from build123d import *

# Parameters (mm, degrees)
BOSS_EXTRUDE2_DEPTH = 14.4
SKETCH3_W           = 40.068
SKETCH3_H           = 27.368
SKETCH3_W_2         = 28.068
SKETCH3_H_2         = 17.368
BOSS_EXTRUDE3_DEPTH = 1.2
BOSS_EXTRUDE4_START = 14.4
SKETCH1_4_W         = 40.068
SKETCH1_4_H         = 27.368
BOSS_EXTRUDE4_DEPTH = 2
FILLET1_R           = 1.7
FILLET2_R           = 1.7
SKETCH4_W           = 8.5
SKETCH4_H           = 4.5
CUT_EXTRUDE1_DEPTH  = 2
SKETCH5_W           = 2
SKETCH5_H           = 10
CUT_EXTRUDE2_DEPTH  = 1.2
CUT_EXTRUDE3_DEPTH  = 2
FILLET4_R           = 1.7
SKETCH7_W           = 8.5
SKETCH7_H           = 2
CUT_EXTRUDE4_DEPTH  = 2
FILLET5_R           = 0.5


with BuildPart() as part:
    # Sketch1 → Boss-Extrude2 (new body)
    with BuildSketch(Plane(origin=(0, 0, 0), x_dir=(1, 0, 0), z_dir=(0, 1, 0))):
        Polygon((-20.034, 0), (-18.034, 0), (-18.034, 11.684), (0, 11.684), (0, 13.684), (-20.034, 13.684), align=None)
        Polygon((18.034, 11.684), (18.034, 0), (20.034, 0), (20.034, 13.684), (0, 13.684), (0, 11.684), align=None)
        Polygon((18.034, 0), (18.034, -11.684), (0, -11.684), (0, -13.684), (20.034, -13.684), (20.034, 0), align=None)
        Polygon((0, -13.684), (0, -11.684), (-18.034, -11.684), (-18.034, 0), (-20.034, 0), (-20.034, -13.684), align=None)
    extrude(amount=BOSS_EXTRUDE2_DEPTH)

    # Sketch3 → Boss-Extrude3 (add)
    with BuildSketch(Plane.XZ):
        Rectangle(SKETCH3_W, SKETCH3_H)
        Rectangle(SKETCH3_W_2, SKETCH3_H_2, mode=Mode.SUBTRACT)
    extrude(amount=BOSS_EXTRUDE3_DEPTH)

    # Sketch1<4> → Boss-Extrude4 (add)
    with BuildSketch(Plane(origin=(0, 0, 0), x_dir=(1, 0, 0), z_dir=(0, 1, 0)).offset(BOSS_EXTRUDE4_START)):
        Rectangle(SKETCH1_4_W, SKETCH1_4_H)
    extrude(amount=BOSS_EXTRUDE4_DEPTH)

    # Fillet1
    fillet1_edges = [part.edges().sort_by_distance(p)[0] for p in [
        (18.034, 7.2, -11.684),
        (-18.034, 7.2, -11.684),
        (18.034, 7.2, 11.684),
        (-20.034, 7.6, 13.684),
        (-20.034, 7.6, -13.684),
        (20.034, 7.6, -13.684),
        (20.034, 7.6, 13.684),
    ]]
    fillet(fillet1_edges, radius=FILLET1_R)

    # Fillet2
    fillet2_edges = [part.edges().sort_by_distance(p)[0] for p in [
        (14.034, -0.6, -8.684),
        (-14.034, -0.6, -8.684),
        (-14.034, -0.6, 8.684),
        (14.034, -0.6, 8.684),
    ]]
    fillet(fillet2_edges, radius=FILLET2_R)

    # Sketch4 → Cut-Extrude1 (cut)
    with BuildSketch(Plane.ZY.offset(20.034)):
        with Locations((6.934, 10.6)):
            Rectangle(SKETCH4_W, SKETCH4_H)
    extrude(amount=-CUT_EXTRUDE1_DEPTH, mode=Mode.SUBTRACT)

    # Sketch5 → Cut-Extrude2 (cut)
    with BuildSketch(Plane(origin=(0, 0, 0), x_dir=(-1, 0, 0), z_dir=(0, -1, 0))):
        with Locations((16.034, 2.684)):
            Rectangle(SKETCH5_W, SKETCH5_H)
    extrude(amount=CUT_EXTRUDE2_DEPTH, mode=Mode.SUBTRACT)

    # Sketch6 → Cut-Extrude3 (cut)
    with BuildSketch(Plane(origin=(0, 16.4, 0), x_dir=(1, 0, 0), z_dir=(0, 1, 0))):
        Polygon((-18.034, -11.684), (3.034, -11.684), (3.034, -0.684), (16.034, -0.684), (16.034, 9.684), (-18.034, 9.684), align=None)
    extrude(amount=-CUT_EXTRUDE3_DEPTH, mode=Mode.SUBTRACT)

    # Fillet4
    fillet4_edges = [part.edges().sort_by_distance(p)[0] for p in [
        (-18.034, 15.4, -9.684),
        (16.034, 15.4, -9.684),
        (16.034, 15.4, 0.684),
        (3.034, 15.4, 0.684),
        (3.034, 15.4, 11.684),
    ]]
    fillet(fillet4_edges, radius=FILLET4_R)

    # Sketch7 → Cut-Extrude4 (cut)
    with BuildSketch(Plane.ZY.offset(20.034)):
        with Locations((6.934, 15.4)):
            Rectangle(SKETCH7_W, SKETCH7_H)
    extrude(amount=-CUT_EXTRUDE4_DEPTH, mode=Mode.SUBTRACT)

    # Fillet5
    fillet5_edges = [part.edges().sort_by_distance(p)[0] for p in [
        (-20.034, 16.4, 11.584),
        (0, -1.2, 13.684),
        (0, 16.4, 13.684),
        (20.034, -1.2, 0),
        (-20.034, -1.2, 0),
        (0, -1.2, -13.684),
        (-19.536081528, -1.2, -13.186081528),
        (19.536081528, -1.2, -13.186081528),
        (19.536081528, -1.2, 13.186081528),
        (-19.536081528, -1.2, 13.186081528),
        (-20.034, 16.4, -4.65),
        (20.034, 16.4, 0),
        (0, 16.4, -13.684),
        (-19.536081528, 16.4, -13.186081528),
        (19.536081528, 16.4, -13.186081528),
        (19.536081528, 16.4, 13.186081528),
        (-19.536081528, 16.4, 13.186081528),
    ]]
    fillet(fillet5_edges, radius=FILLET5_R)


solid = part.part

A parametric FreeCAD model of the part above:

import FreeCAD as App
import Part
import Sketcher
from FreeCAD import Vector
Q = App.Units.Quantity


def edges_at(feature, points):
    """Names of the edges that pass closest to the given points."""
    edges = feature.Shape.Edges
    near = lambda p: min(range(len(edges)), key=lambda i: edges[i].distToShape(Part.Vertex(*p))[0])
    return sorted({f"Edge{near(p) + 1}" for p in points})


def add_polygon(sketch, points):
    """Adds a closed chain of lines whose ends are joined by coincident constraints."""
    first, n = sketch.GeometryCount, len(points)
    for a, b in zip(points, points[1:] + points[:1]):
        sketch.addGeometry(Part.LineSegment(App.Vector(*a, 0), App.Vector(*b, 0)), False)
    for i in range(n):
        sketch.addConstraint(Sketcher.Constraint("Coincident", first + i, 2, first + (i + 1) % n, 1))

doc = App.newDocument("Part")
body = doc.addObject("PartDesign::Body", "Body")

# Sketch on XZ plane
sketch1 = body.newObject("Sketcher::SketchObject", "Sketch")
sketch1.AttachmentSupport = (doc.getObject("XZ_Plane"), [""])
sketch1.MapMode = "FlatFace"
add_polygon(sketch1, [(20.034, 13.684), (20.034, -13.684), (-20.034, -13.684), (-20.034, 13.684)])  # lines 0-3
add_polygon(sketch1, [(-18.034, -11.684), (18.034, -11.684), (18.034, 11.684), (-18.034, 11.684)])  # lines 4-7
sketch1.addConstraint([
    Sketcher.Constraint("Vertical", 0),
    Sketcher.Constraint("Horizontal", 1),
    Sketcher.Constraint("Vertical", 2),
    Sketcher.Constraint("Horizontal", 3),
    Sketcher.Constraint("Horizontal", 4),
    Sketcher.Constraint("Vertical", 5),
    Sketcher.Constraint("Horizontal", 6),
    Sketcher.Constraint("Vertical", 7),
    Sketcher.Constraint("Symmetric", 0, 2, 2, 2, -1, 1),
    Sketcher.Constraint("Symmetric", 4, 2, 6, 2, -1, 1),
    Sketcher.Constraint("DistanceX", 4, 2, 0, 2, Q("2 mm")),
    Sketcher.Constraint("DistanceY", 0, 2, 4, 2, Q("2 mm")),
    Sketcher.Constraint("DistanceX", 1, 2, 1, 1, Q("40.068 mm")),
    Sketcher.Constraint("DistanceY", 0, 2, 0, 1, Q("27.368 mm")),
])
pad1 = body.newObject("PartDesign::Pad", "Pad")
pad1.Profile = sketch1
pad1.Length = 14.4
pad1.Reversed = True

# Sketch on XZ plane
sketch2 = body.newObject("Sketcher::SketchObject", "Sketch001")
sketch2.AttachmentSupport = (doc.getObject("XZ_Plane"), [""])
sketch2.MapMode = "FlatFace"
add_polygon(sketch2, [(-20.034, 13.684), (-20.034, -13.684), (20.034, -13.684), (20.034, 13.684)])  # lines 0-3
add_polygon(sketch2, [(14.034, -8.684), (-14.034, -8.684), (-14.034, 8.684), (14.034, 8.684)])  # lines 4-7
sketch2.addConstraint([
    Sketcher.Constraint("Vertical", 0),
    Sketcher.Constraint("Horizontal", 1),
    Sketcher.Constraint("Vertical", 2),
    Sketcher.Constraint("Horizontal", 3),
    Sketcher.Constraint("Horizontal", 4),
    Sketcher.Constraint("Vertical", 5),
    Sketcher.Constraint("Horizontal", 6),
    Sketcher.Constraint("Vertical", 7),
    Sketcher.Constraint("Symmetric", 0, 2, 2, 2, -1, 1),
    Sketcher.Constraint("Symmetric", 4, 2, 6, 2, -1, 1),
    Sketcher.Constraint("DistanceX", 0, 2, 4, 2, Q("6 mm")),
    Sketcher.Constraint("DistanceY", 0, 2, 4, 2, Q("5 mm")),
    Sketcher.Constraint("DistanceX", 1, 1, 1, 2, Q("40.068 mm")),
    Sketcher.Constraint("DistanceY", 0, 2, 0, 1, Q("27.368 mm")),
])
pad2 = body.newObject("PartDesign::Pad", "Pad001")
pad2.Profile = sketch2
pad2.Length = 1.2

# Sketch on XZ plane
sketch3 = body.newObject("Sketcher::SketchObject", "Sketch002")
sketch3.AttachmentSupport = (doc.getObject("XZ_Plane"), [""])
sketch3.MapMode = "FlatFace"
sketch3.AttachmentOffset = App.Placement(Vector(0, 0, -14.4), App.Rotation())
add_polygon(sketch3, [(-20.034, -13.684), (-20.034, 13.684), (20.034, 13.684), (20.034, -13.684)])  # lines 0-3
sketch3.addConstraint([
    Sketcher.Constraint("Vertical", 0),
    Sketcher.Constraint("Horizontal", 1),
    Sketcher.Constraint("Vertical", 2),
    Sketcher.Constraint("Horizontal", 3),
    Sketcher.Constraint("Symmetric", 0, 2, 2, 2, -1, 1),
    Sketcher.Constraint("DistanceX", 1, 1, 1, 2, Q("40.068 mm")),
    Sketcher.Constraint("DistanceY", 0, 1, 0, 2, Q("27.368 mm")),
])
pad3 = body.newObject("PartDesign::Pad", "Pad002")
pad3.Profile = sketch3
pad3.Length = 2
pad3.Reversed = True
doc.recompute()

fillet = body.newObject("PartDesign::Fillet", "Fillet")
fillet.Base = (pad3, edges_at(pad3, [
    (18.034, 7.2, -11.684),
    (-18.034, 7.2, -11.684),
    (18.034, 7.2, 11.684),
    (-20.034, 7.6, 13.684),
    (-20.034, 7.6, -13.684),
    (20.034, 7.6, -13.684),
    (20.034, 7.6, 13.684),
]))
fillet.Radius = 1.7
doc.recompute()

fillet2 = body.newObject("PartDesign::Fillet", "Fillet001")
fillet2.Base = (fillet, edges_at(fillet, [
    (14.034, -0.6, -8.684),
    (-14.034, -0.6, -8.684),
    (-14.034, -0.6, 8.684),
    (14.034, -0.6, 8.684),
]))
fillet2.Radius = 1.7

# Sketch on YZ plane
sketch4 = body.newObject("Sketcher::SketchObject", "Sketch003")
sketch4.AttachmentSupport = (doc.getObject("YZ_Plane"), [""])
sketch4.MapMode = "FlatFace"
sketch4.AttachmentOffset = App.Placement(Vector(0, 0, -20.034), App.Rotation())
add_polygon(sketch4, [(12.85, 2.684), (8.35, 2.684), (8.35, 11.184), (12.85, 11.184)])  # lines 0-3
sketch4.addConstraint([
    Sketcher.Constraint("Horizontal", 0),
    Sketcher.Constraint("Vertical", 1),
    Sketcher.Constraint("Horizontal", 2),
    Sketcher.Constraint("Vertical", 3),
    Sketcher.Constraint("DistanceX", 0, 2, 0, 1, Q("4.5 mm")),
    Sketcher.Constraint("DistanceY", 1, 1, 1, 2, Q("8.5 mm")),
    Sketcher.Constraint("DistanceX", -1, 1, 0, 2, Q("8.35 mm")),
    Sketcher.Constraint("DistanceY", -1, 1, 0, 2, Q("2.684 mm")),
])
pocket1 = body.newObject("PartDesign::Pocket", "Pocket")
pocket1.Profile = sketch4
pocket1.Length = 2
pocket1.Reversed = True

# Sketch on XZ plane
sketch5 = body.newObject("Sketcher::SketchObject", "Sketch004")
sketch5.AttachmentSupport = (doc.getObject("XZ_Plane"), [""])
sketch5.MapMode = "FlatFace"
add_polygon(sketch5, [(-15.034, -7.684), (-15.034, 2.316), (-17.034, 2.316), (-17.034, -7.684)])  # lines 0-3
sketch5.addConstraint([
    Sketcher.Constraint("Vertical", 0),
    Sketcher.Constraint("Horizontal", 1),
    Sketcher.Constraint("Vertical", 2),
    Sketcher.Constraint("Horizontal", 3),
    Sketcher.Constraint("DistanceX", 1, 2, 1, 1, Q("2 mm")),
    Sketcher.Constraint("DistanceY", 0, 1, 0, 2, Q("10 mm")),
    Sketcher.Constraint("DistanceX", 0, 2, -1, 1, Q("15.034 mm")),
    Sketcher.Constraint("DistanceY", -1, 1, 0, 2, Q("2.316 mm")),
])
pocket2 = body.newObject("PartDesign::Pocket", "Pocket001")
pocket2.Profile = sketch5
pocket2.Length = 1.2
pocket2.Reversed = True

# Sketch on XZ plane
sketch6 = body.newObject("Sketcher::SketchObject", "Sketch005")
sketch6.AttachmentSupport = (doc.getObject("XZ_Plane"), [""])
sketch6.MapMode = "FlatFace"
sketch6.AttachmentOffset = App.Placement(Vector(0, 0, -16.4), App.Rotation())
add_polygon(sketch6, [(-18.034, 11.684), (3.034, 11.684), (3.034, 0.684), (16.034, 0.684), (16.034, -9.684), (-18.034, -9.684)])  # lines 0-5
sketch6.addConstraint([
    Sketcher.Constraint("Horizontal", 0),
    Sketcher.Constraint("Vertical", 1),
    Sketcher.Constraint("Horizontal", 2),
    Sketcher.Constraint("Vertical", 3),
    Sketcher.Constraint("Horizontal", 4),
    Sketcher.Constraint("Vertical", 5),
    Sketcher.Constraint("DistanceX", 2, 1, 2, 2, Q("13 mm")),
    Sketcher.Constraint("DistanceY", 1, 2, 1, 1, Q("11 mm")),
    Sketcher.Constraint("DistanceX", 0, 1, 0, 2, Q("21.068 mm")),
    Sketcher.Constraint("DistanceY", 3, 2, 3, 1, Q("10.368 mm")),
    Sketcher.Constraint("DistanceX", -1, 1, 0, 2, Q("3.034 mm")),
    Sketcher.Constraint("DistanceY", -1, 1, 0, 2, Q("11.684 mm")),
])
pocket3 = body.newObject("PartDesign::Pocket", "Pocket002")
pocket3.Profile = sketch6
pocket3.Length = 2
pocket3.Reversed = True
doc.recompute()

fillet3 = body.newObject("PartDesign::Fillet", "Fillet002")
fillet3.Base = (pocket3, edges_at(pocket3, [
    (-18.034, 15.4, -9.684),
    (16.034, 15.4, -9.684),
    (16.034, 15.4, 0.684),
    (3.034, 15.4, 0.684),
    (3.034, 15.4, 11.684),
]))
fillet3.Radius = 1.7

# Sketch on YZ plane
sketch7 = body.newObject("Sketcher::SketchObject", "Sketch006")
sketch7.AttachmentSupport = (doc.getObject("YZ_Plane"), [""])
sketch7.MapMode = "FlatFace"
sketch7.AttachmentOffset = App.Placement(Vector(0, 0, -20.034), App.Rotation())
add_polygon(sketch7, [(16.4, 2.684), (14.4, 2.684), (14.4, 11.184), (16.4, 11.184)])  # lines 0-3
sketch7.addConstraint([
    Sketcher.Constraint("Horizontal", 0),
    Sketcher.Constraint("Vertical", 1),
    Sketcher.Constraint("Horizontal", 2),
    Sketcher.Constraint("Vertical", 3),
    Sketcher.Constraint("DistanceX", 0, 2, 0, 1, Q("2 mm")),
    Sketcher.Constraint("DistanceY", 1, 1, 1, 2, Q("8.5 mm")),
    Sketcher.Constraint("DistanceX", -1, 1, 0, 2, Q("14.4 mm")),
    Sketcher.Constraint("DistanceY", -1, 1, 0, 2, Q("2.684 mm")),
])
pocket4 = body.newObject("PartDesign::Pocket", "Pocket003")
pocket4.Profile = sketch7
pocket4.Length = 2
pocket4.Reversed = True
doc.recompute()

fillet4 = body.newObject("PartDesign::Fillet", "Fillet003")
fillet4.Base = (pocket4, edges_at(pocket4, [
    (-20.034, 16.4, 11.584),
    (0, -1.2, 13.684),
    (0, 16.4, 13.684),
    (20.034, -1.2, 0),
    (-20.034, -1.2, 0),
    (0, -1.2, -13.684),
    (-19.536, -1.2, -13.186),
    (19.536, -1.2, -13.186),
    (19.536, -1.2, 13.186),
    (-19.536, -1.2, 13.186),
    (-20.034, 16.4, -4.65),
    (20.034, 16.4, 0),
    (0, 16.4, -13.684),
    (-19.536, 16.4, -13.186),
    (19.536, 16.4, -13.186),
    (19.536, 16.4, 13.186),
    (-19.536, 16.4, 13.186),
]))
fillet4.Radius = 0.5

doc.recompute()
